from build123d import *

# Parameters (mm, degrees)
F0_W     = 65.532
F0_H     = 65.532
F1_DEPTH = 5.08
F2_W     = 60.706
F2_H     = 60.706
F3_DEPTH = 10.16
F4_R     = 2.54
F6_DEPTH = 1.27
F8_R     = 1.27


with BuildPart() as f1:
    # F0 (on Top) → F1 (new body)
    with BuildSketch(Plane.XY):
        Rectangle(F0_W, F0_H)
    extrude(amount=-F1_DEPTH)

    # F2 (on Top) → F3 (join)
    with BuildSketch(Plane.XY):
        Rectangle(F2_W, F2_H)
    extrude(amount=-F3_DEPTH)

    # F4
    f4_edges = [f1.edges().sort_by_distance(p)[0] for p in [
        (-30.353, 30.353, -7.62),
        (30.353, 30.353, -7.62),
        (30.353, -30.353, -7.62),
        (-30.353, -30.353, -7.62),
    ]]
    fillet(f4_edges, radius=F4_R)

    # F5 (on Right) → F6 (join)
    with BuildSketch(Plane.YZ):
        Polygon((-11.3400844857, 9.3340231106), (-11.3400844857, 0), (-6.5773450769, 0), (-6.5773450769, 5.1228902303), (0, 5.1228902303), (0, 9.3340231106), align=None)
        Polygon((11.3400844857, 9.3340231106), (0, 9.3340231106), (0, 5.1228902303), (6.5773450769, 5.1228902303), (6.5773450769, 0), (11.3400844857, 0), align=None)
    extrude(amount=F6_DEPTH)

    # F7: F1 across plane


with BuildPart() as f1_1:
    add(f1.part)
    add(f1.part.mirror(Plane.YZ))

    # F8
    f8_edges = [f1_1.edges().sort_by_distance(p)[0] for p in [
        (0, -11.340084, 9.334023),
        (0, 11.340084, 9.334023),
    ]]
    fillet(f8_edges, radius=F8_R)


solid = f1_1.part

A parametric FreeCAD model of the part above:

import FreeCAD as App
import Part
import Sketcher
from FreeCAD import Vector
Q = App.Units.Quantity


def edges_at(feature, points):
    """Names of the edges that pass closest to the given points."""
    edges = feature.Shape.Edges
    near = lambda p: min(range(len(edges)), key=lambda i: edges[i].distToShape(Part.Vertex(*p))[0])
    return sorted({f"Edge{near(p) + 1}" for p in points})


def add_polygon(sketch, points):
    """Adds a closed chain of lines whose ends are joined by coincident constraints."""
    first, n = sketch.GeometryCount, len(points)
    for a, b in zip(points, points[1:] + points[:1]):
        sketch.addGeometry(Part.LineSegment(App.Vector(*a, 0), App.Vector(*b, 0)), False)
    for i in range(n):
        sketch.addConstraint(Sketcher.Constraint("Coincident", first + i, 2, first + (i + 1) % n, 1))

doc = App.newDocument("Part")
body = doc.addObject("PartDesign::Body", "Body")

# Sketch on XY plane
sketch1 = body.newObject("Sketcher::SketchObject", "Sketch")
sketch1.AttachmentSupport = (doc.getObject("XY_Plane"), [""])
sketch1.MapMode = "FlatFace"
add_polygon(sketch1, [(-32.766, 32.766), (-32.766, -32.766), (32.766, -32.766), (32.766, 32.766)])  # lines 0-3
sketch1.addConstraint([
    Sketcher.Constraint("Vertical", 0),
    Sketcher.Constraint("Horizontal", 1),
    Sketcher.Constraint("Vertical", 2),
    Sketcher.Constraint("Horizontal", 3),
    Sketcher.Constraint("Symmetric", 0, 2, 2, 2, -1, 1),
    Sketcher.Constraint("Equal", 3, 0),
    Sketcher.Constraint("DistanceX", 1, 1, 1, 2, Q("2.58 in")),
])
pad1 = body.newObject("PartDesign::Pad", "Pad")
pad1.Profile = sketch1
pad1.Length = Q("0.2 in")
pad1.Reversed = True

# Sketch on XY plane
sketch2 = body.newObject("Sketcher::SketchObject", "Sketch001")
sketch2.AttachmentSupport = (doc.getObject("XY_Plane"), [""])
sketch2.MapMode = "FlatFace"
add_polygon(sketch2, [(-30.353, 30.353), (-30.353, -30.353), (30.353, -30.353), (30.353, 30.353)])  # lines 0-3
sketch2.addConstraint([
    Sketcher.Constraint("Vertical", 0),
    Sketcher.Constraint("Horizontal", 1),
    Sketcher.Constraint("Vertical", 2),
    Sketcher.Constraint("Horizontal", 3),
    Sketcher.Constraint("Symmetric", 0, 2, 2, 2, -1, 1),
    Sketcher.Constraint("Equal", 3, 0),
    Sketcher.Constraint("DistanceX", 1, 1, 1, 2, Q("2.39 in")),
])
pad2 = body.newObject("PartDesign::Pad", "Pad001")
pad2.Profile = sketch2
pad2.Length = Q("0.4 in")
pad2.Reversed = True
doc.recompute()

fillet = body.newObject("PartDesign::Fillet", "Fillet")
fillet.Base = (pad2, edges_at(pad2, [
    (-30.353, 30.353, -7.62),
    (30.353, 30.353, -7.62),
    (30.353, -30.353, -7.62),
    (-30.353, -30.353, -7.62),
]))
fillet.Radius = Q("0.1 in")

# Sketch on YZ plane
sketch3 = body.newObject("Sketcher::SketchObject", "Sketch002")
sketch3.AttachmentSupport = (doc.getObject("YZ_Plane"), [""])
sketch3.MapMode = "FlatFace"
add_polygon(sketch3, [(-11.340084, 9.334023), (-11.340084, 0), (-6.577345, 0), (-6.577345, 5.12289), (6.577345, 5.12289), (6.577345, 0), (11.340084, 0), (11.340084, 9.334023)])  # lines 0-7
sketch3.addConstraint([
    Sketcher.Constraint("Vertical", 0),
    Sketcher.Constraint("Horizontal", 1),
    Sketcher.Constraint("Vertical", 2),
    Sketcher.Constraint("Horizontal", 3),
    Sketcher.Constraint("Vertical", 4),
    Sketcher.Constraint("Horizontal", 5),
    Sketcher.Constraint("Vertical", 6),
    Sketcher.Constraint("Horizontal", 7),
    Sketcher.Constraint("Symmetric", 1, 2, 4, 2, -1, 1),
    Sketcher.Constraint("Symmetric", 0, 2, 5, 2, -2),
    Sketcher.Constraint("DistanceX", 1, 1, 1, 2, 4.762739),
    Sketcher.Constraint("DistanceX", 3, 1, 3, 2, 13.15469),
    Sketcher.Constraint("DistanceY", 2, 1, 2, 2, 5.12289),
    Sketcher.Constraint("DistanceY", 0, 2, 0, 1, 9.334023),
])
pad3 = body.newObject("PartDesign::Pad", "Pad002")
pad3.Profile = sketch3
pad3.Length = Q("0.05 in")
body2 = doc.addObject("PartDesign::Body", "Body001")
doc.recompute()

body2.BaseFeature = body
doc.recompute()

mirroring = doc.addObject("Part::Mirroring", "Mirroring")
mirroring.Source = body
mirroring.Base = Vector(0, 0, 0)
mirroring.Normal = Vector(1, 0, 0)
body3 = doc.addObject("PartDesign::Body", "Body002")
body3.BaseFeature = mirroring
boolean = body2.newObject("PartDesign::Boolean", "Boolean")
boolean.Type = "Fuse"
boolean.addObjects([body3])
doc.recompute()

fillet2 = body2.newObject("PartDesign::Fillet", "Fillet001")
fillet2.Base = (boolean, edges_at(boolean, [(0, -11.34, 9.334), (0, 11.34, 9.334)]))
fillet2.Radius = Q("0.05 in")
mirroring.Visibility = False

doc.recompute()
